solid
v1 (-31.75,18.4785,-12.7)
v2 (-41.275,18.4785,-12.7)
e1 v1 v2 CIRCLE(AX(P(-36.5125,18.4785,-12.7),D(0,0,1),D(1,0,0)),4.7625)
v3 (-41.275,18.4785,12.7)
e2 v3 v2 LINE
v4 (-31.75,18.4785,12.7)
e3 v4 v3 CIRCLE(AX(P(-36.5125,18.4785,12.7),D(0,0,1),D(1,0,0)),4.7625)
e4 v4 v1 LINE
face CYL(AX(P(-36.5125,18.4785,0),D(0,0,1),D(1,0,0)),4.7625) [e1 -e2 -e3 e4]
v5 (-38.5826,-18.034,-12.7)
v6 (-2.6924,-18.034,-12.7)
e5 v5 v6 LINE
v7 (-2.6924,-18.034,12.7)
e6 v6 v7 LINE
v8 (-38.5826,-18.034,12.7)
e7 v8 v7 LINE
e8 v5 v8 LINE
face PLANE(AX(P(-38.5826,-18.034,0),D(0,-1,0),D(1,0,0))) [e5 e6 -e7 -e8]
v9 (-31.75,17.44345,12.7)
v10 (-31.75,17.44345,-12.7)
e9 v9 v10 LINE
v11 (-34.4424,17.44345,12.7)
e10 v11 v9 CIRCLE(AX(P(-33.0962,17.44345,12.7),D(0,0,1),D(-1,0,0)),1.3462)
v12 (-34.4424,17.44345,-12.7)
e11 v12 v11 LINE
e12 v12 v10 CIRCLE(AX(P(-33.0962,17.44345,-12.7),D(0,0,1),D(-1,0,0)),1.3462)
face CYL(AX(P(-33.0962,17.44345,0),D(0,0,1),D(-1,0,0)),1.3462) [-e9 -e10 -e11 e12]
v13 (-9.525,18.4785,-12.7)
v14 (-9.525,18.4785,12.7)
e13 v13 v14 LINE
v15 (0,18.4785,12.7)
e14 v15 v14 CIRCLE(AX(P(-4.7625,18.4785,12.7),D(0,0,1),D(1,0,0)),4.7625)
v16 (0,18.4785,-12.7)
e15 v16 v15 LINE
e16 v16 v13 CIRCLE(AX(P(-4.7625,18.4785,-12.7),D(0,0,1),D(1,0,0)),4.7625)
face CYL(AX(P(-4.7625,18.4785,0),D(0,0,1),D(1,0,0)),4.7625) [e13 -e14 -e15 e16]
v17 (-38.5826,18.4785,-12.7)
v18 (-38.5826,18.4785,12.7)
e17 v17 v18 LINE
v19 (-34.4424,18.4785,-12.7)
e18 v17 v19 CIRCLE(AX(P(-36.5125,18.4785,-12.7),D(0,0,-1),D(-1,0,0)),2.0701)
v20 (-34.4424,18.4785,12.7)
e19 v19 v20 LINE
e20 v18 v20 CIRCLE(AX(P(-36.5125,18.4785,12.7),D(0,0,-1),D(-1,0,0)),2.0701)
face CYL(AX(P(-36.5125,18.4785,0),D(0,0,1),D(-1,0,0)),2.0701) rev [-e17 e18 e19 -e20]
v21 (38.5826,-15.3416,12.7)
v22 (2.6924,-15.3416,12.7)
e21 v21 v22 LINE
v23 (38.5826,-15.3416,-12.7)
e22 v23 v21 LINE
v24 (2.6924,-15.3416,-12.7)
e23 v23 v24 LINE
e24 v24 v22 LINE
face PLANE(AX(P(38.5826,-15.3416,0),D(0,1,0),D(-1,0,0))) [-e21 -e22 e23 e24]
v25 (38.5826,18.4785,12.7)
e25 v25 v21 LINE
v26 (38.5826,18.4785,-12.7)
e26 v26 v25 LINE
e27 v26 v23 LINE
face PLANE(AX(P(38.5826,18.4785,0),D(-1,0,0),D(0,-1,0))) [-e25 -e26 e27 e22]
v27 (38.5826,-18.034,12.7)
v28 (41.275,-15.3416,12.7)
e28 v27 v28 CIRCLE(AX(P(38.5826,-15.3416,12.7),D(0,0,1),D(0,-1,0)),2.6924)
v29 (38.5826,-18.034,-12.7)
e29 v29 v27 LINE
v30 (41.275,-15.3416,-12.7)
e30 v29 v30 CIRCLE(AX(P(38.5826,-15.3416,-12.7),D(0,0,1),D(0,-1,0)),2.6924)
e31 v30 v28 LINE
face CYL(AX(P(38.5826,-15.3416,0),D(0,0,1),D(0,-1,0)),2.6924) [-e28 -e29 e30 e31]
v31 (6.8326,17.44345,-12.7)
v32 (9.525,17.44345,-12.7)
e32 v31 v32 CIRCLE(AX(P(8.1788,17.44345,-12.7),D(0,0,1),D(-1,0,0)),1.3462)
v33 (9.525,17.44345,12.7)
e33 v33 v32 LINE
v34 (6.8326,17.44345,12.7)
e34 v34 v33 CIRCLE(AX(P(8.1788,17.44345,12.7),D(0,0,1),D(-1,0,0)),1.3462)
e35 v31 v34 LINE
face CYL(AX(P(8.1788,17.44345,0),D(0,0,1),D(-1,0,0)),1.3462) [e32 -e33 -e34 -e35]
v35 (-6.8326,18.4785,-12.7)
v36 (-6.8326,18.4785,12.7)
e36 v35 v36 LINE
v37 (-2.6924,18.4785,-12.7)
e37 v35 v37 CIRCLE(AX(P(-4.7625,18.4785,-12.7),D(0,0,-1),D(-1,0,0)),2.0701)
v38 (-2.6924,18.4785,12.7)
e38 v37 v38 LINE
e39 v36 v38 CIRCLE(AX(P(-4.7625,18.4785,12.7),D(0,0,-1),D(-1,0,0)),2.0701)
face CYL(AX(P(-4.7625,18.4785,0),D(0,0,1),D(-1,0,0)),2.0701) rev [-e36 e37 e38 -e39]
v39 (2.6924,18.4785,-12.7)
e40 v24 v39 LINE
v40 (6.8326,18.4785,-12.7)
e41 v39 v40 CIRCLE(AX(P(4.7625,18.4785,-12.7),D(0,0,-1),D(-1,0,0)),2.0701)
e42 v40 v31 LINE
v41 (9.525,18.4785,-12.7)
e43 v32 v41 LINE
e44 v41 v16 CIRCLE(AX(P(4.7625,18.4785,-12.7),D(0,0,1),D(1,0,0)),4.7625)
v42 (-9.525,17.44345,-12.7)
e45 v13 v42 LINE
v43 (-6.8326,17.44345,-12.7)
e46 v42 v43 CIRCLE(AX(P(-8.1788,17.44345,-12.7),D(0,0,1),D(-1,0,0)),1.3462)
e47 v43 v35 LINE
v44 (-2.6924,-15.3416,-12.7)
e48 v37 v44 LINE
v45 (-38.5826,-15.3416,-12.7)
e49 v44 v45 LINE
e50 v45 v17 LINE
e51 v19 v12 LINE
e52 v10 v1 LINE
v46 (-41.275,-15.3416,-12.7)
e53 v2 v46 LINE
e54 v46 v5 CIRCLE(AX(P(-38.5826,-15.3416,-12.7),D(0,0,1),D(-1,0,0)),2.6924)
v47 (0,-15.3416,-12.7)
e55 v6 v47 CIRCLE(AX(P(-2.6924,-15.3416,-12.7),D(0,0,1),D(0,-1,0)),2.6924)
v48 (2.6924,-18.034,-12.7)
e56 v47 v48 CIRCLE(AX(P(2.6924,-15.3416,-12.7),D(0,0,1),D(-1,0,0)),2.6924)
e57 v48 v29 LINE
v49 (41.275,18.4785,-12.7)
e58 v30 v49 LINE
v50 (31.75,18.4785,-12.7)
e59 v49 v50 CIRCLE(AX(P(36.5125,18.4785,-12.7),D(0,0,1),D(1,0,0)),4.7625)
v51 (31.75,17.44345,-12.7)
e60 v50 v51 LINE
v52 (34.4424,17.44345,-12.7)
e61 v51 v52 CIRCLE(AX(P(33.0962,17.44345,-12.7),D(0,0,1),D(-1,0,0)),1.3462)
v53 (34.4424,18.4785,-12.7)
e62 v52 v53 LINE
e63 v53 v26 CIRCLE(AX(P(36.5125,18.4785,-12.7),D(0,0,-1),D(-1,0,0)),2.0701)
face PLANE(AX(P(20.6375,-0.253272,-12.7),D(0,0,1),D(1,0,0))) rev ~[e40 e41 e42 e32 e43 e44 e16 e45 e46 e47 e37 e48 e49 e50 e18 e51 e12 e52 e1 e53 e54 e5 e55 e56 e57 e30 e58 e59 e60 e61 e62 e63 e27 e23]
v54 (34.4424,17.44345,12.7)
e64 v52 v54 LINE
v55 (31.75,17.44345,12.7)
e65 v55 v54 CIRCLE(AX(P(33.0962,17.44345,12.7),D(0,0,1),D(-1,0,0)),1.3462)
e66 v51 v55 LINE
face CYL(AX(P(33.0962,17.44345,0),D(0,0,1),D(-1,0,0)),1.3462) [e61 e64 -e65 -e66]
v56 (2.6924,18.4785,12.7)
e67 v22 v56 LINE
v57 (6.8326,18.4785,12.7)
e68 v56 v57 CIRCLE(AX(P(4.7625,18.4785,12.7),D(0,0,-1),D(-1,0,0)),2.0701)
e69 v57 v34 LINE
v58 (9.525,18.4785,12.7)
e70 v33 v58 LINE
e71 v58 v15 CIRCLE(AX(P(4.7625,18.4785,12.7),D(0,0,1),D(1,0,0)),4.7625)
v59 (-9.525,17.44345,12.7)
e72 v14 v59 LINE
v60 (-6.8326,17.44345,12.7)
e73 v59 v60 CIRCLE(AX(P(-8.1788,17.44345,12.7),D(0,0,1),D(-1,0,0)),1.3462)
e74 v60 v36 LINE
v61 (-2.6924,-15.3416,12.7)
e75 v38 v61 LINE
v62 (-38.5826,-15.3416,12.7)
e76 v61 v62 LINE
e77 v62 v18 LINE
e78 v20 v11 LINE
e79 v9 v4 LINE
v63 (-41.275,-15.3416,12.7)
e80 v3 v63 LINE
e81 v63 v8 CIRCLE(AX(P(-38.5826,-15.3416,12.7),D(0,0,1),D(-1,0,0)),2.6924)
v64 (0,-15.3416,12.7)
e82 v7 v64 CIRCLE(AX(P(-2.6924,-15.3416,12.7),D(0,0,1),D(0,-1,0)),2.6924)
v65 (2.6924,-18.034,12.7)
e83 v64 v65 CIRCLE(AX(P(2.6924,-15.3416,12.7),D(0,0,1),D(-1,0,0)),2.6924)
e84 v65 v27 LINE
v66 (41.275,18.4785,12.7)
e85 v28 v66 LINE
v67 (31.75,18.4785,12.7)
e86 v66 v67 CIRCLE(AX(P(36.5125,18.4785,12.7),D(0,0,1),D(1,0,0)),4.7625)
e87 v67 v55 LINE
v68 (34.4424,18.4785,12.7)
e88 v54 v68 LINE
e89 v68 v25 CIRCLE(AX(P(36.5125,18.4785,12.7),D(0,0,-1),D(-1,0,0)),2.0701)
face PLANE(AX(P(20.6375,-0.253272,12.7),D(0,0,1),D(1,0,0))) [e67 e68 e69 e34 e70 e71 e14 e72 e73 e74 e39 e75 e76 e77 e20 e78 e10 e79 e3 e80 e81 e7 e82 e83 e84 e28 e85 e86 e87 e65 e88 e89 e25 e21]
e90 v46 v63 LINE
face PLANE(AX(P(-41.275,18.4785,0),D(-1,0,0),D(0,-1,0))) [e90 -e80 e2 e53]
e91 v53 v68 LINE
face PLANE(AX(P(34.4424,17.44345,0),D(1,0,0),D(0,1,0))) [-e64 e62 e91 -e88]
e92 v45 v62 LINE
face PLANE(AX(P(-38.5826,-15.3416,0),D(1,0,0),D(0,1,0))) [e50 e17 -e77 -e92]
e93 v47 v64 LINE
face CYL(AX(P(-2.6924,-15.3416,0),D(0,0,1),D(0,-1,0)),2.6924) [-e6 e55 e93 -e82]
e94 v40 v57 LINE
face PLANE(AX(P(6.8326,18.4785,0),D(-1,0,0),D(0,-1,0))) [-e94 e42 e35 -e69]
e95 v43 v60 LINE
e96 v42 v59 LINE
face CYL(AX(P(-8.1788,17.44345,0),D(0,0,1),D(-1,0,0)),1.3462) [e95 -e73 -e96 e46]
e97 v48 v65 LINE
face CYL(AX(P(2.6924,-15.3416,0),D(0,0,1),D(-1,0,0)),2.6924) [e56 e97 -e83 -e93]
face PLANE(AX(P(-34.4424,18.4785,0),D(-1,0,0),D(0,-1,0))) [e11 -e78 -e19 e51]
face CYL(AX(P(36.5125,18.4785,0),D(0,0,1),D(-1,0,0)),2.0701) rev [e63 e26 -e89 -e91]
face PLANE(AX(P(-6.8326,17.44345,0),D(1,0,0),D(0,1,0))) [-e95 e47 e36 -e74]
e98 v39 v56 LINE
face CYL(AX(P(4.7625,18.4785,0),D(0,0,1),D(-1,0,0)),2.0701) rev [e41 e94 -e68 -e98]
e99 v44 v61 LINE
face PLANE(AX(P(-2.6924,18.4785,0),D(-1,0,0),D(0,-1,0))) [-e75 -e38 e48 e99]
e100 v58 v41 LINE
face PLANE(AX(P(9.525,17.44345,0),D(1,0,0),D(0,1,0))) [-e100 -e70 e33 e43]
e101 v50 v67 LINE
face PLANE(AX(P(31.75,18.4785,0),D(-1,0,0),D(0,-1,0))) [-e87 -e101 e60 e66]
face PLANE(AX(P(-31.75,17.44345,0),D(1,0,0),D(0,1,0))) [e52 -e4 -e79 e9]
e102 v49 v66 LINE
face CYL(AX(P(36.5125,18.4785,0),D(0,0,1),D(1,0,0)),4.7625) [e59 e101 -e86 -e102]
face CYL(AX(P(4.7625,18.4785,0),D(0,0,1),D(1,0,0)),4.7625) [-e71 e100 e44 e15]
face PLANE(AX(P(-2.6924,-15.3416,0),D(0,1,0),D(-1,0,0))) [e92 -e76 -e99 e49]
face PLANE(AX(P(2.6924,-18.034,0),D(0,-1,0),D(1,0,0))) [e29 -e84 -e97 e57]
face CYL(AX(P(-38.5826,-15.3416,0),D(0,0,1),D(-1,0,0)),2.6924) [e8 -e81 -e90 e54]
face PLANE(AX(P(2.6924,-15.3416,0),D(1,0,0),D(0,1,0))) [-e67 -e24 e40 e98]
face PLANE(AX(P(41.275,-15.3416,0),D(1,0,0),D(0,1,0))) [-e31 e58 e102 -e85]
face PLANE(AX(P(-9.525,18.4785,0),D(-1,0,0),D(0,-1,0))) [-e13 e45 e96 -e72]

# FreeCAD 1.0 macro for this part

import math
import FreeCAD as App
import Part
import Sketcher

V = App.Vector
Q = App.Units.Quantity

doc = App.newDocument("Part")
body = doc.addObject("PartDesign::Body", "Body")

# Sketch on XY plane
sketch1 = doc.addObject("Sketcher::SketchObject", "Sketch")
body.addObject(sketch1)
sketch1.AttachmentSupport = (doc.XY_Plane, [""])
sketch1.MapMode = "FlatFace"
sketch1.addGeometry([
    Part.LineSegment(V(-41.3, 18.5, 0), V(-41.3, -15.3, 0)),  # 0
    Part.ArcOfCircle(Part.Circle(V(-38.6, -15.3, 0), V(0, 0, 1), 2.7), math.radians(180), math.radians(270)),  # 1
    Part.LineSegment(V(-38.6, -18, 0), V(-2.7, -18, 0)),  # 2
    Part.ArcOfCircle(Part.Circle(V(-2.7, -15.3, 0), V(0, 0, 1), 2.7), math.radians(-90), math.radians(0)),  # 3
    Part.LineSegment(V(0, -15.3, 0), V(0, 18.5, 0)),  # 4
    Part.ArcOfCircle(Part.Circle(V(-4.8, 18.5, 0), V(0, 0, 1), 4.8), math.radians(0), math.radians(180)),  # 5
    Part.LineSegment(V(-9.5, 18.5, 0), V(-9.5, 17.4, 0)),  # 6
    Part.ArcOfCircle(Part.Circle(V(-8.2, 17.4, 0), V(0, 0, 1), 1.3), math.radians(180), math.radians(360)),  # 7
    Part.LineSegment(V(-6.8, 17.4, 0), V(-6.8, 18.5, 0)),  # 8
    Part.ArcOfCircle(Part.Circle(V(-4.8, 18.5, 0), V(0, 0, 1), 2.1), math.radians(0), math.radians(180)),  # 9
    Part.LineSegment(V(-2.7, 18.5, 0), V(-2.7, -15.3, 0)),  # 10
    Part.LineSegment(V(-2.7, -15.3, 0), V(-38.6, -15.3, 0)),  # 11
    Part.LineSegment(V(-38.6, -15.3, 0), V(-38.6, 18.5, 0)),  # 12
    Part.ArcOfCircle(Part.Circle(V(-36.5, 18.5, 0), V(0, 0, 1), 2.1), math.radians(0), math.radians(180)),  # 13
    Part.LineSegment(V(-34.4, 18.5, 0), V(-34.4, 17.4, 0)),  # 14
    Part.ArcOfCircle(Part.Circle(V(-33.1, 17.4, 0), V(0, 0, 1), 1.3), math.radians(180), math.radians(360)),  # 15
    Part.LineSegment(V(-31.8, 17.4, 0), V(-31.8, 18.5, 0)),  # 16
    Part.ArcOfCircle(Part.Circle(V(-36.5, 18.5, 0), V(0, 0, 1), 4.8), math.radians(0), math.radians(180)),  # 17
], False)
sketch1.addConstraint([
    Sketcher.Constraint("Tangent", 0, 2, 1, 1),
    Sketcher.Constraint("Tangent", 1, 2, 2, 1),
    Sketcher.Constraint("Tangent", 2, 2, 3, 1),
    Sketcher.Constraint("Tangent", 3, 2, 4, 1),
    Sketcher.Constraint("Tangent", 4, 2, 5, 1),
    Sketcher.Constraint("Tangent", 5, 2, 6, 1),
    Sketcher.Constraint("Tangent", 6, 2, 7, 1),
    Sketcher.Constraint("Tangent", 7, 2, 8, 1),
    Sketcher.Constraint("Tangent", 8, 2, 9, 2),
    Sketcher.Constraint("Tangent", 9, 1, 10, 1),
    Sketcher.Constraint("Coincident", 10, 2, 11, 1),
    Sketcher.Constraint("Coincident", 11, 2, 12, 1),
    Sketcher.Constraint("Tangent", 12, 2, 13, 2),
    Sketcher.Constraint("Tangent", 13, 1, 14, 1),
    Sketcher.Constraint("Tangent", 14, 2, 15, 1),
    Sketcher.Constraint("Tangent", 15, 2, 16, 1),
    Sketcher.Constraint("Tangent", 16, 2, 17, 1),
    Sketcher.Constraint("Tangent", 17, 2, 0, 1),
    Sketcher.Constraint("Vertical", 0),
    Sketcher.Constraint("Horizontal", 2),
    Sketcher.Constraint("Vertical", 4),
    Sketcher.Constraint("Vertical", 6),
    Sketcher.Constraint("Vertical", 8),
    Sketcher.Constraint("Vertical", 10),
    Sketcher.Constraint("Horizontal", 11),
    Sketcher.Constraint("Vertical", 12),
    Sketcher.Constraint("Vertical", 14),
    Sketcher.Constraint("Vertical", 16),
    Sketcher.Constraint("Coincident", 9, 3, 5, 3),
    Sketcher.Constraint("Coincident", 17, 3, 13, 3),
    Sketcher.Constraint("Coincident", 10, 2, 3, 3),
    Sketcher.Constraint("Coincident", 11, 2, 1, 3),
    Sketcher.Constraint("Equal", 9, 13),
    Sketcher.Constraint("PointOnObject", 3, 2, -2),
    Sketcher.Constraint("Horizontal", 9, 3, 13, 3),
    Sketcher.Constraint("Horizontal", 7, 3, 15, 3),
    Sketcher.Constraint("Radius", 1, Q("0.106 in")),
    Sketcher.Constraint("Radius", 5, Q("0.1875 in")),
    Sketcher.Constraint("DistanceX", 2, 1, 2, 2, Q("1.413 in")),
    Sketcher.Constraint("DistanceY", 1, 2, -1, 1, Q("0.71 in")),
    Sketcher.Constraint("DistanceY", 0, 2, 0, 1, Q("1.3315 in")),
    Sketcher.Constraint("DistanceY", 6, 2, 6, 1, 1.03505),
])
pad1 = doc.addObject("PartDesign::Pad", "Pad")
body.addObject(pad1)
pad1.Profile = sketch1
pad1.Length = Q("1 in")
pad1.Midplane = True
doc.recompute()

linearpattern = doc.addObject("PartDesign::LinearPattern", "LinearPattern")
body.addObject(linearpattern)
linearpattern.Originals = [pad1]
linearpattern.Direction = (doc.X_Axis, [""])
linearpattern.Mode = "offset"
linearpattern.Offset = Q("1.625 in")
linearpattern.Occurrences = 2
body.Tip = linearpattern

doc.recompute()
